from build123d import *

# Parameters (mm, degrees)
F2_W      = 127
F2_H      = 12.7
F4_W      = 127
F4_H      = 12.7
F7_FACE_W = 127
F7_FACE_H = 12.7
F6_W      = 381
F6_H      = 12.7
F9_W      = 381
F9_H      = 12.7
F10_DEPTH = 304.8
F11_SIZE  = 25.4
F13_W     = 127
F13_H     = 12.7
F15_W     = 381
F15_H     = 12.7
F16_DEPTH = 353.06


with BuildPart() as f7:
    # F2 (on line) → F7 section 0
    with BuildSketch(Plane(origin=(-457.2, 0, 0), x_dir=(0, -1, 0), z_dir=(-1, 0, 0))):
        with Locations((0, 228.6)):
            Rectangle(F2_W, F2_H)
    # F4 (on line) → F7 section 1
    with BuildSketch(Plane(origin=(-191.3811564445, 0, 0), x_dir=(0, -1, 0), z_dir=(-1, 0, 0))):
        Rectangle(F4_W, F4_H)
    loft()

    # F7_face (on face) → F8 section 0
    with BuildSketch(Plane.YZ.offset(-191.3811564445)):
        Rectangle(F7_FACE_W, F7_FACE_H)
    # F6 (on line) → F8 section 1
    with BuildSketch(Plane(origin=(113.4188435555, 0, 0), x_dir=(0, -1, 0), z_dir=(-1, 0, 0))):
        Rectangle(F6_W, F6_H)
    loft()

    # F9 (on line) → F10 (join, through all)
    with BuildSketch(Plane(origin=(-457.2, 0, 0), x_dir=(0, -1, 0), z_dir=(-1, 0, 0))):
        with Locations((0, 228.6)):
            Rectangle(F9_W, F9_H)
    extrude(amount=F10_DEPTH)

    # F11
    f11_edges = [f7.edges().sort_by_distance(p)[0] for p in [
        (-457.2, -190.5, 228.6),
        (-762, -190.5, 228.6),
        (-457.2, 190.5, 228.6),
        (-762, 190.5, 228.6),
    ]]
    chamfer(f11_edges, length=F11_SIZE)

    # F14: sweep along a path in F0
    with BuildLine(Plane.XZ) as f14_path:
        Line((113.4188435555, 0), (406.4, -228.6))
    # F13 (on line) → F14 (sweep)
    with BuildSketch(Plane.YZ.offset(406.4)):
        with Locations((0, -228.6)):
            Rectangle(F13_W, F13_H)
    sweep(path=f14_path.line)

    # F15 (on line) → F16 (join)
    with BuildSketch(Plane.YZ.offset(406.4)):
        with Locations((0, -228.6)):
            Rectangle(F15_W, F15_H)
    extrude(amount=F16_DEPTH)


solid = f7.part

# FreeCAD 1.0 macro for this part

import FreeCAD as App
import Part
import Sketcher
from FreeCAD import Vector
Q = App.Units.Quantity


def edges_at(feature, points):
    """Names of the edges that pass closest to the given points."""
    edges = feature.Shape.Edges
    near = lambda p: min(range(len(edges)), key=lambda i: edges[i].distToShape(Part.Vertex(*p))[0])
    return sorted({f"Edge{near(p) + 1}" for p in points})

doc = App.newDocument("Part")
body = doc.addObject("PartDesign::Body", "Body")

sketch1 = body.newObject("Sketcher::SketchObject", "Sketch")
sketch1.AttachmentSupport = (doc.getObject("YZ_Plane"), [""])
sketch1.MapMode = "FlatFace"
sketch1.AttachmentOffset = App.Placement(Vector(0, 0, -18 * 25.4), App.Rotation())
sketch1.addGeometry([
    Part.LineSegment(Vector(64, 235, 0), Vector(64, 222, 0)),
    Part.LineSegment(Vector(64, 222, 0), Vector(-64, 222, 0)),
    Part.LineSegment(Vector(-64, 222, 0), Vector(-64, 235, 0)),
    Part.LineSegment(Vector(-64, 235, 0), Vector(64, 235, 0)),
], False)
sketch1.addConstraint([
    Sketcher.Constraint("Coincident", 0, 2, 1, 1),
    Sketcher.Constraint("Coincident", 1, 2, 2, 1),
    Sketcher.Constraint("Coincident", 2, 2, 3, 1),
    Sketcher.Constraint("Coincident", 3, 2, 0, 1),
    Sketcher.Constraint("Vertical", 0),
    Sketcher.Constraint("Horizontal", 1),
    Sketcher.Constraint("Vertical", 2),
    Sketcher.Constraint("Horizontal", 3),
    Sketcher.Constraint("DistanceX", 1, 2, 1, 1, Q("5 in")),
    Sketcher.Constraint("DistanceY", 0, 2, 0, 1, Q("0.5 in")),
    Sketcher.Constraint("DistanceX", -1, 1, 0, 2, Q("2.5 in")),
    Sketcher.Constraint("DistanceY", -1, 1, 0, 2, Q("8.75 in")),
])

sketch2 = body.newObject("Sketcher::SketchObject", "Sketch001")
sketch2.AttachmentSupport = (doc.getObject("YZ_Plane"), [""])
sketch2.MapMode = "FlatFace"
sketch2.AttachmentOffset = App.Placement(Vector(0, 0, -191.381156), App.Rotation())
sketch2.addGeometry([
    Part.LineSegment(Vector(64, 6, 0), Vector(64, -6, 0)),
    Part.LineSegment(Vector(64, -6, 0), Vector(-64, -6, 0)),
    Part.LineSegment(Vector(-64, -6, 0), Vector(-64, 6, 0)),
    Part.LineSegment(Vector(-64, 6, 0), Vector(64, 6, 0)),
], False)
sketch2.addConstraint([
    Sketcher.Constraint("Coincident", 0, 2, 1, 1),
    Sketcher.Constraint("Coincident", 1, 2, 2, 1),
    Sketcher.Constraint("Coincident", 2, 2, 3, 1),
    Sketcher.Constraint("Coincident", 3, 2, 0, 1),
    Sketcher.Constraint("Vertical", 0),
    Sketcher.Constraint("Horizontal", 1),
    Sketcher.Constraint("Vertical", 2),
    Sketcher.Constraint("Horizontal", 3),
    Sketcher.Constraint("Symmetric", 0, 2, 2, 2, -1, 1),
    Sketcher.Constraint("DistanceX", 1, 2, 1, 1, Q("5 in")),
    Sketcher.Constraint("DistanceY", 0, 2, 0, 1, Q("0.5 in")),
])

additiveloft = body.newObject("PartDesign::AdditiveLoft", "AdditiveLoft")
additiveloft.Profile = sketch1
additiveloft.Sections = [sketch2]

sketch3 = body.newObject("Sketcher::SketchObject", "Sketch002")
sketch3.AttachmentSupport = (doc.getObject("YZ_Plane"), [""])
sketch3.MapMode = "FlatFace"
sketch3.AttachmentOffset = App.Placement(Vector(0, 0, -191.381156), App.Rotation())
sketch3.addGeometry([
    Part.LineSegment(Vector(-64, 6, 0), Vector(-64, -6, 0)),
    Part.LineSegment(Vector(-64, -6, 0), Vector(64, -6, 0)),
    Part.LineSegment(Vector(64, -6, 0), Vector(64, 6, 0)),
    Part.LineSegment(Vector(64, 6, 0), Vector(-64, 6, 0)),
], False)
sketch3.addConstraint([
    Sketcher.Constraint("Coincident", 0, 2, 1, 1),
    Sketcher.Constraint("Coincident", 1, 2, 2, 1),
    Sketcher.Constraint("Coincident", 2, 2, 3, 1),
    Sketcher.Constraint("Coincident", 3, 2, 0, 1),
    Sketcher.Constraint("Vertical", 0),
    Sketcher.Constraint("Horizontal", 1),
    Sketcher.Constraint("Vertical", 2),
    Sketcher.Constraint("Horizontal", 3),
    Sketcher.Constraint("Symmetric", 0, 2, 2, 2, -1, 1),
    Sketcher.Constraint("DistanceX", 1, 1, 1, 2, Q("5 in")),
    Sketcher.Constraint("DistanceY", 0, 2, 0, 1, Q("0.5 in")),
])

sketch4 = body.newObject("Sketcher::SketchObject", "Sketch003")
sketch4.AttachmentSupport = (doc.getObject("YZ_Plane"), [""])
sketch4.MapMode = "FlatFace"
sketch4.AttachmentOffset = App.Placement(Vector(0, 0, 113.418844), App.Rotation())
sketch4.addGeometry([
    Part.LineSegment(Vector(190, 6, 0), Vector(190, -6, 0)),
    Part.LineSegment(Vector(190, -6, 0), Vector(-190, -6, 0)),
    Part.LineSegment(Vector(-190, -6, 0), Vector(-190, 6, 0)),
    Part.LineSegment(Vector(-190, 6, 0), Vector(190, 6, 0)),
], False)
sketch4.addConstraint([
    Sketcher.Constraint("Coincident", 0, 2, 1, 1),
    Sketcher.Constraint("Coincident", 1, 2, 2, 1),
    Sketcher.Constraint("Coincident", 2, 2, 3, 1),
    Sketcher.Constraint("Coincident", 3, 2, 0, 1),
    Sketcher.Constraint("Vertical", 0),
    Sketcher.Constraint("Horizontal", 1),
    Sketcher.Constraint("Vertical", 2),
    Sketcher.Constraint("Horizontal", 3),
    Sketcher.Constraint("Symmetric", 0, 2, 2, 2, -1, 1),
    Sketcher.Constraint("DistanceX", 1, 2, 1, 1, Q("15 in")),
    Sketcher.Constraint("DistanceY", 0, 2, 0, 1, Q("0.5 in")),
])

additiveloft2 = body.newObject("PartDesign::AdditiveLoft", "AdditiveLoft001")
additiveloft2.Profile = sketch3
additiveloft2.Sections = [sketch4]

sketch5 = body.newObject("Sketcher::SketchObject", "Sketch004")
sketch5.AttachmentSupport = (doc.getObject("YZ_Plane"), [""])
sketch5.MapMode = "FlatFace"
sketch5.AttachmentOffset = App.Placement(Vector(0, 0, -18 * 25.4), App.Rotation())
sketch5.addGeometry([
    Part.LineSegment(Vector(190, 235, 0), Vector(190, 222, 0)),
    Part.LineSegment(Vector(190, 222, 0), Vector(-190, 222, 0)),
    Part.LineSegment(Vector(-190, 222, 0), Vector(-190, 235, 0)),
    Part.LineSegment(Vector(-190, 235, 0), Vector(190, 235, 0)),
], False)
sketch5.addConstraint([
    Sketcher.Constraint("Coincident", 0, 2, 1, 1),
    Sketcher.Constraint("Coincident", 1, 2, 2, 1),
    Sketcher.Constraint("Coincident", 2, 2, 3, 1),
    Sketcher.Constraint("Coincident", 3, 2, 0, 1),
    Sketcher.Constraint("Vertical", 0),
    Sketcher.Constraint("Horizontal", 1),
    Sketcher.Constraint("Vertical", 2),
    Sketcher.Constraint("Horizontal", 3),
    Sketcher.Constraint("DistanceX", 1, 2, 1, 1, Q("15 in")),
    Sketcher.Constraint("DistanceY", 0, 2, 0, 1, Q("0.5 in")),
    Sketcher.Constraint("DistanceX", -1, 1, 0, 2, Q("7.5 in")),
    Sketcher.Constraint("DistanceY", -1, 1, 0, 2, Q("8.75 in")),
])
pad1 = body.newObject("PartDesign::Pad", "Pad")
pad1.Profile = sketch5
pad1.Length = Q("12 in")
pad1.Reversed = True
doc.recompute()

chamfer = body.newObject("PartDesign::Chamfer", "Chamfer")
chamfer.Base = (pad1, edges_at(pad1, [
    (-457.2, -190.5, 228.6),
    (-762, -190.5, 228.6),
    (-457.2, 190.5, 228.6),
    (-762, 190.5, 228.6),
]))
chamfer.Size = Q("1 in")

sketch6 = body.newObject("Sketcher::SketchObject", "Sketch005")
sketch6.AttachmentSupport = (doc.getObject("YZ_Plane"), [""])
sketch6.MapMode = "FlatFace"
sketch6.AttachmentOffset = App.Placement(Vector(0, 0, 16 * 25.4), App.Rotation())
sketch6.addGeometry([
    Part.LineSegment(Vector(-64, -222, 0), Vector(-64, -235, 0)),
    Part.LineSegment(Vector(-64, -235, 0), Vector(64, -235, 0)),
    Part.LineSegment(Vector(64, -235, 0), Vector(64, -222, 0)),
    Part.LineSegment(Vector(64, -222, 0), Vector(-64, -222, 0)),
], False)
sketch6.addConstraint([
    Sketcher.Constraint("Coincident", 0, 2, 1, 1),
    Sketcher.Constraint("Coincident", 1, 2, 2, 1),
    Sketcher.Constraint("Coincident", 2, 2, 3, 1),
    Sketcher.Constraint("Coincident", 3, 2, 0, 1),
    Sketcher.Constraint("Vertical", 0),
    Sketcher.Constraint("Horizontal", 1),
    Sketcher.Constraint("Vertical", 2),
    Sketcher.Constraint("Horizontal", 3),
    Sketcher.Constraint("DistanceX", 1, 1, 1, 2, Q("5 in")),
    Sketcher.Constraint("DistanceY", 0, 2, 0, 1, Q("0.5 in")),
    Sketcher.Constraint("DistanceX", 0, 2, -1, 1, Q("2.5 in")),
    Sketcher.Constraint("DistanceY", 0, 2, -1, 1, Q("9.25 in")),
])

sketch7 = body.newObject("Sketcher::SketchObject", "Sketch006")
sketch7.Placement = App.Placement(Vector(42.919715, 0, 55.007295), App.Rotation(Vector(0.788404815, 0, -0.615156766), Vector(0, 0.999999999, 0), Vector(0.615156766, 0, 0.788404815), "ZXY"))
sketch7.addGeometry(Part.LineSegment(Vector(89, 0, 0), Vector(461, 0, 0)), False)
sketch7.addConstraint([
    Sketcher.Constraint("Horizontal", 0),
    Sketcher.Constraint("PointOnObject", 0, 1, -1),
    Sketcher.Constraint("DistanceX", 0, 1, 0, 2, Q("371.612591 mm")),
    Sketcher.Constraint("DistanceX", -1, 1, 0, 1, Q("89.419962 mm")),
])
doc.recompute()

additivepipe = body.newObject("PartDesign::AdditivePipe", "AdditivePipe")
additivepipe.Profile = sketch6
additivepipe.Spine = (sketch7, ["Edge1"])

sketch8 = body.newObject("Sketcher::SketchObject", "Sketch007")
sketch8.AttachmentSupport = (doc.getObject("YZ_Plane"), [""])
sketch8.MapMode = "FlatFace"
sketch8.AttachmentOffset = App.Placement(Vector(0, 0, 16 * 25.4), App.Rotation())
sketch8.addGeometry([
    Part.LineSegment(Vector(-190, -222, 0), Vector(-190, -235, 0)),
    Part.LineSegment(Vector(-190, -235, 0), Vector(190, -235, 0)),
    Part.LineSegment(Vector(190, -235, 0), Vector(190, -222, 0)),
    Part.LineSegment(Vector(190, -222, 0), Vector(-190, -222, 0)),
], False)
sketch8.addConstraint([
    Sketcher.Constraint("Coincident", 0, 2, 1, 1),
    Sketcher.Constraint("Coincident", 1, 2, 2, 1),
    Sketcher.Constraint("Coincident", 2, 2, 3, 1),
    Sketcher.Constraint("Coincident", 3, 2, 0, 1),
    Sketcher.Constraint("Vertical", 0),
    Sketcher.Constraint("Horizontal", 1),
    Sketcher.Constraint("Vertical", 2),
    Sketcher.Constraint("Horizontal", 3),
    Sketcher.Constraint("DistanceX", 1, 1, 1, 2, Q("15 in")),
    Sketcher.Constraint("DistanceY", 0, 2, 0, 1, Q("0.5 in")),
    Sketcher.Constraint("DistanceX", 0, 2, -1, 1, Q("7.5 in")),
    Sketcher.Constraint("DistanceY", 0, 2, -1, 1, Q("9.25 in")),
])
pad2 = body.newObject("PartDesign::Pad", "Pad001")
pad2.Profile = sketch8
pad2.Length = Q("13.9 in")

doc.recompute()
